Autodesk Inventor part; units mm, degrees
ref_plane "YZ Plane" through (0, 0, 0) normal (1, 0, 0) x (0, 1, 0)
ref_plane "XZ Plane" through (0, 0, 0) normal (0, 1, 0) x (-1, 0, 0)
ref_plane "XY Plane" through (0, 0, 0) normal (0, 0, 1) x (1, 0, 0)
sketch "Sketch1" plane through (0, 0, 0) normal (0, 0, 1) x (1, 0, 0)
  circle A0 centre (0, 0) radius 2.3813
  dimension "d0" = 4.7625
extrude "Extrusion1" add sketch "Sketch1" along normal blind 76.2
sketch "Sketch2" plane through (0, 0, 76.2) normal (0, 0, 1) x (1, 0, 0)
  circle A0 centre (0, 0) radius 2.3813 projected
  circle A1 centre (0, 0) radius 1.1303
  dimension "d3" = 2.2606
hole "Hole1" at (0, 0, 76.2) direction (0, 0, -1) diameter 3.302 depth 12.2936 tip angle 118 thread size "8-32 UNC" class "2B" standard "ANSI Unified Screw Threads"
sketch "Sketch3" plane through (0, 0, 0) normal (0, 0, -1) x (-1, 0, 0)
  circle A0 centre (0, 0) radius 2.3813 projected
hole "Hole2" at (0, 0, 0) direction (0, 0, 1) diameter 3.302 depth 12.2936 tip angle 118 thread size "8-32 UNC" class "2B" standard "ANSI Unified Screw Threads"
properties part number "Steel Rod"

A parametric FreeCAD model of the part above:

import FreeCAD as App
import Part
import Sketcher
Q = App.Units.Quantity

doc = App.newDocument("Part")
params = doc.addObject("Spreadsheet::Sheet", "Params")
for row, (alias, value) in enumerate([
    ("sketch1_diameter", "0.1875 in"),
    ("pad1_length", "3 in"),
    ("sketch2_diameter", "0.13 in"),
    ("hole_diameter", "0.13 in"),
    ("hole_depth", "0.484 in"),
    ("sketch3_diameter", "0.13 in"),
    ("hole2_diameter", "0.13 in"),
    ("hole2_depth", "0.484 in"),
], start=1):
    params.set(f"A{row}", alias)
    params.set(f"B{row}", "=" + value)
    params.setAlias(f"B{row}", alias)

body = doc.addObject("PartDesign::Body", "Body")

# Sketch on XY plane
sketch1 = body.newObject("Sketcher::SketchObject", "Sketch")
sketch1.AttachmentSupport = (doc.getObject("XY_Plane"), [""])
sketch1.MapMode = "FlatFace"
sketch1.addGeometry(Part.Circle(App.Vector(0, 0, 0), App.Vector(0, 0, 1), 2.3813), False)
sketch1.addConstraint([
    Sketcher.Constraint("Coincident", 0, 3, -1, 1),
    Sketcher.Constraint("Diameter", 0, Q("0.1875 in")),
])
sketch1.setExpression("Constraints[1]", "Params.sketch1_diameter")
pad1 = body.newObject("PartDesign::Pad", "Pad")
pad1.Profile = sketch1
pad1.setExpression("Length", "Params.pad1_length")

# Sketch on XY plane
sketch2 = body.newObject("Sketcher::SketchObject", "Sketch001")
sketch2.AttachmentSupport = (doc.getObject("XY_Plane"), [""])
sketch2.MapMode = "FlatFace"
sketch2.AttachmentOffset = App.Placement(App.Vector(0, 0, 3 * 25.4), App.Rotation())
sketch2.addGeometry(Part.Circle(App.Vector(0, 0, 0), App.Vector(0, 0, 1), 1.651), False)
sketch2.addConstraint([
    Sketcher.Constraint("Coincident", 0, 3, -1, 1),
    Sketcher.Constraint("Diameter", 0, Q("0.13 in")),
])
sketch2.setExpression("Constraints[1]", "Params.sketch2_diameter")
doc.recompute()
hole = body.newObject("PartDesign::Hole", "Hole")
hole.Profile = sketch2
hole.ThreadType = "None"
hole.setExpression("Diameter", "Params.hole_diameter")
hole.DepthType = "Dimension"
hole.setExpression("Depth", "Params.hole_depth")
hole.DrillPoint = "Angled"
hole.DrillPointAngle = 118

# Sketch on XY plane
sketch3 = body.newObject("Sketcher::SketchObject", "Sketch002")
sketch3.AttachmentSupport = (doc.getObject("XY_Plane"), [""])
sketch3.MapMode = "FlatFace"
sketch3.addGeometry(Part.Circle(App.Vector(0, 0, 0), App.Vector(0, 0, 1), 1.651), False)
sketch3.addConstraint([
    Sketcher.Constraint("Coincident", 0, 3, -1, 1),
    Sketcher.Constraint("Diameter", 0, Q("0.13 in")),
])
sketch3.setExpression("Constraints[1]", "Params.sketch3_diameter")
doc.recompute()
hole2 = body.newObject("PartDesign::Hole", "Hole001")
hole2.Profile = sketch3
hole2.ThreadType = "None"
hole2.setExpression("Diameter", "Params.hole2_diameter")
hole2.DepthType = "Dimension"
hole2.setExpression("Depth", "Params.hole2_depth")
hole2.DrillPoint = "Angled"
hole2.DrillPointAngle = 118
hole2.Reversed = True

doc.recompute()
